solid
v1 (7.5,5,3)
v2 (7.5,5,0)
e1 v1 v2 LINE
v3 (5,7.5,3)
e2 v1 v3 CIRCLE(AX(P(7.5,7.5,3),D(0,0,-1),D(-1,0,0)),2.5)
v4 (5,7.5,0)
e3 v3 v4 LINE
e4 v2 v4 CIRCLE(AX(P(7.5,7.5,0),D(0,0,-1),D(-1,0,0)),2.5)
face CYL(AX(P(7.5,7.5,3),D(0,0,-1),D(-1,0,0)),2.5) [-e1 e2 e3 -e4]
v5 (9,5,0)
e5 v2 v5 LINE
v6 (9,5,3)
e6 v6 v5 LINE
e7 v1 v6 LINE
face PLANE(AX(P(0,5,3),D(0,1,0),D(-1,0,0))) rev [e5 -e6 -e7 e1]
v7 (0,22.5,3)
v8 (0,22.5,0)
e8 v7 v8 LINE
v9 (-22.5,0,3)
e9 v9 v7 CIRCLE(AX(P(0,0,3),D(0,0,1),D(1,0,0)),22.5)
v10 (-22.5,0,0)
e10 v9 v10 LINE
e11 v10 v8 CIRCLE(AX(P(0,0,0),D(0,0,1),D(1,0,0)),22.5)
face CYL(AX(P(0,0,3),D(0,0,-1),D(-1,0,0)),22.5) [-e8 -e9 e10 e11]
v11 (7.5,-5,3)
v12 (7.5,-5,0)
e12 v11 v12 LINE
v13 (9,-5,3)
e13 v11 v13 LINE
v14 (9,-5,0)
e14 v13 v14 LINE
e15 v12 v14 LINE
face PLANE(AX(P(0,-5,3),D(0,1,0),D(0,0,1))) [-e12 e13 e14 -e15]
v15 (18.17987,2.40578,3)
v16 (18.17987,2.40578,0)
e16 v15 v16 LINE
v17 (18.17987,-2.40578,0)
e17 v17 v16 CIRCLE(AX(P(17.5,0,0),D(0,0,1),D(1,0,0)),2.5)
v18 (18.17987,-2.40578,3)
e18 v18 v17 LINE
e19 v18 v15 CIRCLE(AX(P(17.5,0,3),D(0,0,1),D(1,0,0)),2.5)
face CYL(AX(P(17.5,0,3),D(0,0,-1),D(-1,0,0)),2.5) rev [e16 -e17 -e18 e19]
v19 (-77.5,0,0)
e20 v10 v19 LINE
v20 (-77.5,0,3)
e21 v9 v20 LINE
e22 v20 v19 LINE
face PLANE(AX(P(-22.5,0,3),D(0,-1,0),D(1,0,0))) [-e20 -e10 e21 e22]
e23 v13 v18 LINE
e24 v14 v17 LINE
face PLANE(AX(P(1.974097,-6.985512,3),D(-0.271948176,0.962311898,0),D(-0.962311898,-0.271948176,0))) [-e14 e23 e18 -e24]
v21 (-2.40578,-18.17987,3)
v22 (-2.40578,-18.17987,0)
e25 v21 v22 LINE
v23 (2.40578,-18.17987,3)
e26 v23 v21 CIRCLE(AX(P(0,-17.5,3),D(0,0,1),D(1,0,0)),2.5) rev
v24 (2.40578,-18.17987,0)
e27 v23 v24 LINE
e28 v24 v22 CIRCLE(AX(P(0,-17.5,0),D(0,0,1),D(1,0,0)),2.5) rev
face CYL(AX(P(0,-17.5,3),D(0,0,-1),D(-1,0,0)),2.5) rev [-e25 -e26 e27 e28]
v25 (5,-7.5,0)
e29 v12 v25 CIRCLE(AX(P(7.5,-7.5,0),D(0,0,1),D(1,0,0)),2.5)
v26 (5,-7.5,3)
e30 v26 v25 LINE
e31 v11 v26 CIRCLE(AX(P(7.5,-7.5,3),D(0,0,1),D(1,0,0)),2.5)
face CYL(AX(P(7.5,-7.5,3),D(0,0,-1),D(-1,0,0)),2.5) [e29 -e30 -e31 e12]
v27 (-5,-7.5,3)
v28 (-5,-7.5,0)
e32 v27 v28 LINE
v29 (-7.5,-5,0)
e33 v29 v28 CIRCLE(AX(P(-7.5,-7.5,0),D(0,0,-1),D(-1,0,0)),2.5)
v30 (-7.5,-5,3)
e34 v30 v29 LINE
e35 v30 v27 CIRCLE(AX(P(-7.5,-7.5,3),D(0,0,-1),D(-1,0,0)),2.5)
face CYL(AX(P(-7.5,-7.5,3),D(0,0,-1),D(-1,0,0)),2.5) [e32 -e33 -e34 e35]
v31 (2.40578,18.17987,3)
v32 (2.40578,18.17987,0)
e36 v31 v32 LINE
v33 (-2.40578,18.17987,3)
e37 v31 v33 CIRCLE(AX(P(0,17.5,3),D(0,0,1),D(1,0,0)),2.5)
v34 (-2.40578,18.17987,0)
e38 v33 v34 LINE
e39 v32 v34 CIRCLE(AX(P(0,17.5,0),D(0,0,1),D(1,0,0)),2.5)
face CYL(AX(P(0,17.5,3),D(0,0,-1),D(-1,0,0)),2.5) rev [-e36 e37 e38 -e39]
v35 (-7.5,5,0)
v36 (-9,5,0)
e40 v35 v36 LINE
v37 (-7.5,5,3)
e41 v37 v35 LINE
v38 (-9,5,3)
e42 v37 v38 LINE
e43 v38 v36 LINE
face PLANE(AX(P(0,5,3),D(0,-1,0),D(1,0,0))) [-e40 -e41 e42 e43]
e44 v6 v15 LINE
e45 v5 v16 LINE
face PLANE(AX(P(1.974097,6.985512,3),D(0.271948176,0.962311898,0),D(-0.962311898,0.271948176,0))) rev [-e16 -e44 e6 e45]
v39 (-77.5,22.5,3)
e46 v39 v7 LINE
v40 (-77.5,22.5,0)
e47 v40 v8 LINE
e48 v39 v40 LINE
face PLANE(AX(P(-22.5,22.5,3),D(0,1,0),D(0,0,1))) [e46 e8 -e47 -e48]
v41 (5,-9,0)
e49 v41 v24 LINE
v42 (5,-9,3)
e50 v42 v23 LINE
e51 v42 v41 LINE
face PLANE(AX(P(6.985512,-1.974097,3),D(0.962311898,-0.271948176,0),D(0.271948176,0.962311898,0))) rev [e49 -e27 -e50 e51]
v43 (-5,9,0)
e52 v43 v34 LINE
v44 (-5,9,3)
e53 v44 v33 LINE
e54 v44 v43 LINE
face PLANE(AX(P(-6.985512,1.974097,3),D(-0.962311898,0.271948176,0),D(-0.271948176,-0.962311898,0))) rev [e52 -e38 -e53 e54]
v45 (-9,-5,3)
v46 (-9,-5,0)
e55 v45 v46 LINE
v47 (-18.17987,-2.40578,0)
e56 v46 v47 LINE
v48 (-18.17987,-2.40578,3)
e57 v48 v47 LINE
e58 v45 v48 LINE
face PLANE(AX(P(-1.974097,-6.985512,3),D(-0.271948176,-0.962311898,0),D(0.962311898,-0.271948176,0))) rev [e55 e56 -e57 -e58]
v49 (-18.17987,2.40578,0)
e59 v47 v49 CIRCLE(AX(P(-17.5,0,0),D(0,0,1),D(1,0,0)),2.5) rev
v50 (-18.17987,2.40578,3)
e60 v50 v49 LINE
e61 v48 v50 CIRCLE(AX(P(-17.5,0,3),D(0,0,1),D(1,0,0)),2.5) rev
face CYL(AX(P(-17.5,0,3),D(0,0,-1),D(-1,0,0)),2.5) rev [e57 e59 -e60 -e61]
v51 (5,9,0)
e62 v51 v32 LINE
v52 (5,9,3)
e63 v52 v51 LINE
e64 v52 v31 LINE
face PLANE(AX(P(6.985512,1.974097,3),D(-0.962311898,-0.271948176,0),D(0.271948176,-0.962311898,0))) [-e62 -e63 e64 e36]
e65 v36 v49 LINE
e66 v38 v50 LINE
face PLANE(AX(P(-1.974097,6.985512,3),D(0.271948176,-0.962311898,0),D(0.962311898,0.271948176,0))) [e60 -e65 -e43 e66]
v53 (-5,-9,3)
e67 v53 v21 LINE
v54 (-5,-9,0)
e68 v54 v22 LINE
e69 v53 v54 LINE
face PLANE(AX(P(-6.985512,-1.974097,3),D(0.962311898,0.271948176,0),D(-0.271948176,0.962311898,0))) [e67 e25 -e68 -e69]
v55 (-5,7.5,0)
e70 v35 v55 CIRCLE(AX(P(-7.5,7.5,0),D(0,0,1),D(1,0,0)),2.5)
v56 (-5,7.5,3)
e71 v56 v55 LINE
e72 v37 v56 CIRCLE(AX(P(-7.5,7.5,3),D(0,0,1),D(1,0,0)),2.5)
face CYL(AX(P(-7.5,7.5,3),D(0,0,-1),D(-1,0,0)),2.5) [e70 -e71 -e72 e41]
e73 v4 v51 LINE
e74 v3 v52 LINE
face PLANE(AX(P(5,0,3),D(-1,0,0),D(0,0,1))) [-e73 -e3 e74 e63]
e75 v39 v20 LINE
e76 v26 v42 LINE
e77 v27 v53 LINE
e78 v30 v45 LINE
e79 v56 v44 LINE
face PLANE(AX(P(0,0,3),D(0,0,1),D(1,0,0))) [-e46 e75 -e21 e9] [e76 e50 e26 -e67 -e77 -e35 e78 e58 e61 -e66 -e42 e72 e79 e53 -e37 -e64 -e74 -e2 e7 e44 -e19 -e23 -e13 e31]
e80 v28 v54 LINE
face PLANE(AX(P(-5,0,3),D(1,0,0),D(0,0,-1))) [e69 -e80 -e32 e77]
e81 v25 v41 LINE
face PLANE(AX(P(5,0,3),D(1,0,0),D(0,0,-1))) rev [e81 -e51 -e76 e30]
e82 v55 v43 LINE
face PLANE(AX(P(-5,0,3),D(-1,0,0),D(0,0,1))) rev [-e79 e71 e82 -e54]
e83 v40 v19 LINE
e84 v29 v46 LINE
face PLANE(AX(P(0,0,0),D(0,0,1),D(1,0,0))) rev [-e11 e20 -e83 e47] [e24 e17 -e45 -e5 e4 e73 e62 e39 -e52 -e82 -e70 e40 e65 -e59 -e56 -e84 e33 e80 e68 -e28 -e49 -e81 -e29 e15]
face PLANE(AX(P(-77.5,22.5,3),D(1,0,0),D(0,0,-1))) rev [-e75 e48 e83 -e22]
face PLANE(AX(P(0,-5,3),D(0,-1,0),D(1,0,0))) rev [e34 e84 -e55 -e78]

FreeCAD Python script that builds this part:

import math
import FreeCAD as App
import Part
import Sketcher

doc = App.newDocument("Part")
body = doc.addObject("PartDesign::Body", "Body")

# Sketch on XY plane
sketch1 = body.newObject("Sketcher::SketchObject", "Sketch")
sketch1.AttachmentSupport = (doc.getObject("XY_Plane"), [""])
sketch1.MapMode = "FlatFace"
sketch1.addGeometry(Part.ArcOfCircle(Part.Circle(App.Vector(0, 0, 0), App.Vector(0, 0, 1), 22.5), math.radians(0), math.radians(90)), False)
sketch1.addGeometry(Part.LineSegment(App.Vector(0, 22.5, 0), App.Vector(-77.5, 22.5, 0)), False)
sketch1.addGeometry(Part.LineSegment(App.Vector(-77.5, 22.5, 0), App.Vector(-77.5, 0, 0)), False)
sketch1.addGeometry(Part.LineSegment(App.Vector(-77.5, 0, 0), App.Vector(-22.5, 0, 0)), False)
sketch1.addGeometry(Part.ArcOfCircle(Part.Circle(App.Vector(0, 0, 0), App.Vector(0, 0, 1), 22.5), math.radians(180), math.radians(185.73917)), False)
sketch1.addGeometry(Part.ArcOfCircle(Part.Circle(App.Vector(0, 0, 0), App.Vector(0, 0, 1), 22.5), math.radians(-174.26083), math.radians(0)), False)
sketch1.addGeometry(Part.LineSegment(App.Vector(-9, 5, 0), App.Vector(-7.5, 5, 0)), False)
sketch1.addGeometry(Part.ArcOfCircle(Part.Circle(App.Vector(-7.5, 7.5, 0), App.Vector(0, 0, 1), 2.5), math.radians(-90), math.radians(0)), False)
sketch1.addGeometry(Part.LineSegment(App.Vector(-5, 7.5, 0), App.Vector(-5, 9, 0)), False)
sketch1.addGeometry(Part.LineSegment(App.Vector(-5, 9, 0), App.Vector(-2.40578, 18.17987, 0)), False)
sketch1.addGeometry(Part.ArcOfCircle(Part.Circle(App.Vector(0, 17.5, 0), App.Vector(0, 0, 1), 2.5), math.radians(15.780228), math.radians(164.219772)), False)
sketch1.addGeometry(Part.LineSegment(App.Vector(2.40578, 18.17987, 0), App.Vector(5, 9, 0)), False)
sketch1.addGeometry(Part.LineSegment(App.Vector(5, 9, 0), App.Vector(5, 7.5, 0)), False)
sketch1.addGeometry(Part.ArcOfCircle(Part.Circle(App.Vector(7.5, 7.5, 0), App.Vector(0, 0, 1), 2.5), math.radians(180), math.radians(270)), False)
sketch1.addGeometry(Part.LineSegment(App.Vector(7.5, 5, 0), App.Vector(9, 5, 0)), False)
sketch1.addGeometry(Part.LineSegment(App.Vector(9, 5, 0), App.Vector(18.17987, 2.40578, 0)), False)
sketch1.addGeometry(Part.ArcOfCircle(Part.Circle(App.Vector(17.5, 0, 0), App.Vector(0, 0, 1), 2.5), math.radians(0), math.radians(74.219772)), False)
sketch1.addGeometry(Part.ArcOfCircle(Part.Circle(App.Vector(17.5, 0, 0), App.Vector(0, 0, 1), 2.5), math.radians(-74.219772), math.radians(0)), False)
sketch1.addGeometry(Part.LineSegment(App.Vector(18.17987, -2.40578, 0), App.Vector(9, -5, 0)), False)
sketch1.addGeometry(Part.LineSegment(App.Vector(9, -5, 0), App.Vector(7.5, -5, 0)), False)
sketch1.addGeometry(Part.ArcOfCircle(Part.Circle(App.Vector(7.5, -7.5, 0), App.Vector(0, 0, 1), 2.5), math.radians(90), math.radians(180)), False)
sketch1.addGeometry(Part.LineSegment(App.Vector(5, -7.5, 0), App.Vector(5, -9, 0)), False)
sketch1.addGeometry(Part.LineSegment(App.Vector(5, -9, 0), App.Vector(2.40578, -18.17987, 0)), False)
sketch1.addGeometry(Part.ArcOfCircle(Part.Circle(App.Vector(0, -17.5, 0), App.Vector(0, 0, 1), 2.5), math.radians(-164.219772), math.radians(-15.780228)), False)
sketch1.addGeometry(Part.LineSegment(App.Vector(-2.40578, -18.17987, 0), App.Vector(-5, -9, 0)), False)
sketch1.addGeometry(Part.LineSegment(App.Vector(-5, -9, 0), App.Vector(-5, -7.5, 0)), False)
sketch1.addGeometry(Part.ArcOfCircle(Part.Circle(App.Vector(-7.5, -7.5, 0), App.Vector(0, 0, 1), 2.5), math.radians(0), math.radians(90)), False)
sketch1.addGeometry(Part.LineSegment(App.Vector(-7.5, -5, 0), App.Vector(-9, -5, 0)), False)
sketch1.addGeometry(Part.LineSegment(App.Vector(-9, -5, 0), App.Vector(-18.17987, -2.40578, 0)), False)
sketch1.addGeometry(Part.ArcOfCircle(Part.Circle(App.Vector(-17.5, 0, 0), App.Vector(0, 0, 1), 2.5), math.radians(105.780228), math.radians(254.219772)), False)
sketch1.addGeometry(Part.LineSegment(App.Vector(-18.17987, 2.40578, 0), App.Vector(-9, 5, 0)), False)
sketch1.addConstraint(Sketcher.Constraint("Tangent", 0, 2, 1, 1))
sketch1.addConstraint(Sketcher.Constraint("Coincident", 1, 2, 2, 1))
sketch1.addConstraint(Sketcher.Constraint("Coincident", 2, 2, 3, 1))
sketch1.addConstraint(Sketcher.Constraint("Coincident", 3, 2, 4, 1))
sketch1.addConstraint(Sketcher.Constraint("Tangent", 4, 2, 5, 1))
sketch1.addConstraint(Sketcher.Constraint("Tangent", 5, 2, 0, 1))
sketch1.addConstraint(Sketcher.Constraint("Tangent", 6, 2, 7, 1))
sketch1.addConstraint(Sketcher.Constraint("Tangent", 7, 2, 8, 1))
sketch1.addConstraint(Sketcher.Constraint("Coincident", 8, 2, 9, 1))
sketch1.addConstraint(Sketcher.Constraint("Tangent", 9, 2, 10, 2))
sketch1.addConstraint(Sketcher.Constraint("Tangent", 10, 1, 11, 1))
sketch1.addConstraint(Sketcher.Constraint("Coincident", 11, 2, 12, 1))
sketch1.addConstraint(Sketcher.Constraint("Tangent", 12, 2, 13, 1))
sketch1.addConstraint(Sketcher.Constraint("Tangent", 13, 2, 14, 1))
sketch1.addConstraint(Sketcher.Constraint("Coincident", 14, 2, 15, 1))
sketch1.addConstraint(Sketcher.Constraint("Tangent", 15, 2, 16, 2))
sketch1.addConstraint(Sketcher.Constraint("Tangent", 16, 1, 17, 2))
sketch1.addConstraint(Sketcher.Constraint("Tangent", 17, 1, 18, 1))
sketch1.addConstraint(Sketcher.Constraint("Coincident", 18, 2, 19, 1))
sketch1.addConstraint(Sketcher.Constraint("Tangent", 19, 2, 20, 1))
sketch1.addConstraint(Sketcher.Constraint("Tangent", 20, 2, 21, 1))
sketch1.addConstraint(Sketcher.Constraint("Coincident", 21, 2, 22, 1))
sketch1.addConstraint(Sketcher.Constraint("Tangent", 22, 2, 23, 2))
sketch1.addConstraint(Sketcher.Constraint("Tangent", 23, 1, 24, 1))
sketch1.addConstraint(Sketcher.Constraint("Coincident", 24, 2, 25, 1))
sketch1.addConstraint(Sketcher.Constraint("Tangent", 25, 2, 26, 1))
sketch1.addConstraint(Sketcher.Constraint("Tangent", 26, 2, 27, 1))
sketch1.addConstraint(Sketcher.Constraint("Coincident", 27, 2, 28, 1))
sketch1.addConstraint(Sketcher.Constraint("Tangent", 28, 2, 29, 2))
sketch1.addConstraint(Sketcher.Constraint("Tangent", 29, 1, 30, 1))
sketch1.addConstraint(Sketcher.Constraint("Coincident", 30, 2, 6, 1))
sketch1.addConstraint(Sketcher.Constraint("Horizontal", 1))
sketch1.addConstraint(Sketcher.Constraint("Vertical", 2))
sketch1.addConstraint(Sketcher.Constraint("Horizontal", 3))
sketch1.addConstraint(Sketcher.Constraint("Horizontal", 6))
sketch1.addConstraint(Sketcher.Constraint("Vertical", 8))
sketch1.addConstraint(Sketcher.Constraint("Vertical", 12))
sketch1.addConstraint(Sketcher.Constraint("Horizontal", 14))
sketch1.addConstraint(Sketcher.Constraint("Horizontal", 19))
sketch1.addConstraint(Sketcher.Constraint("Vertical", 21))
sketch1.addConstraint(Sketcher.Constraint("Vertical", 25))
sketch1.addConstraint(Sketcher.Constraint("Horizontal", 27))
sketch1.addConstraint(Sketcher.Constraint("Coincident", 0, 3, -1, 1))
sketch1.addConstraint(Sketcher.Constraint("Coincident", 4, 3, -1, 1))
sketch1.addConstraint(Sketcher.Constraint("Equal", 7, 10))
sketch1.addConstraint(Sketcher.Constraint("Equal", 10, 13))
sketch1.addConstraint(Sketcher.Constraint("Equal", 13, 16))
sketch1.addConstraint(Sketcher.Constraint("Equal", 16, 17))
sketch1.addConstraint(Sketcher.Constraint("Equal", 17, 20))
sketch1.addConstraint(Sketcher.Constraint("Equal", 20, 23))
sketch1.addConstraint(Sketcher.Constraint("Equal", 23, 26))
sketch1.addConstraint(Sketcher.Constraint("Equal", 26, 29))
sketch1.addConstraint(Sketcher.Constraint("Symmetric", 7, 3, 20, 3, -1, 1))
sketch1.addConstraint(Sketcher.Constraint("Symmetric", 10, 3, 23, 3, -1, 1))
sketch1.addConstraint(Sketcher.Constraint("Symmetric", 13, 3, 26, 3, -1, 1))
sketch1.addConstraint(Sketcher.Constraint("Symmetric", 16, 3, 29, 3, -1, 1))
sketch1.addConstraint(Sketcher.Constraint("Symmetric", 7, 3, 13, 3, -2))
sketch1.addConstraint(Sketcher.Constraint("Symmetric", 9, 2, 10, 1, -2))
sketch1.addConstraint(Sketcher.Constraint("Symmetric", 17, 1, 28, 2, -2))
sketch1.addConstraint(Sketcher.Constraint("PointOnObject", 2, 2, -1))
sketch1.addConstraint(Sketcher.Constraint("PointOnObject", 5, 2, -1))
sketch1.addConstraint(Sketcher.Constraint("PointOnObject", 16, 1, -1))
sketch1.addConstraint(Sketcher.Constraint("Perpendicular", 9, 15))
sketch1.addConstraint(Sketcher.Constraint("Perpendicular", 11, 18))
sketch1.addConstraint(Sketcher.Constraint("Perpendicular", 15, 22))
sketch1.addConstraint(Sketcher.Constraint("Perpendicular", 18, 24))
sketch1.addConstraint(Sketcher.Constraint("Perpendicular", 24, 30))
sketch1.addConstraint(Sketcher.Constraint("Equal", 27, 8))
sketch1.addConstraint(Sketcher.Constraint("Equal", 11, 15))
sketch1.addConstraint(Sketcher.Constraint("Radius", 0, 22.5))
sketch1.addConstraint(Sketcher.Constraint("Radius", 7, 2.5))
sketch1.addConstraint(Sketcher.Constraint("DistanceX", 3, 1, 3, 2, 55.0))
sketch1.addConstraint(Sketcher.Constraint("DistanceX", 6, 1, 6, 2, 1.5))
sketch1.addConstraint(Sketcher.Constraint("DistanceY", -1, 1, 6, 2, 5.0))
sketch1.addConstraint(Sketcher.Constraint("DistanceX", -1, 1, 16, 1, 20.0))
sketch1.addConstraint(Sketcher.Constraint("DistanceY", 4, 2, -1, 1, 2.25))
pad1 = body.newObject("PartDesign::Pad", "Pad")
pad1.Profile = sketch1
pad1.Length = 3

doc.recompute()
